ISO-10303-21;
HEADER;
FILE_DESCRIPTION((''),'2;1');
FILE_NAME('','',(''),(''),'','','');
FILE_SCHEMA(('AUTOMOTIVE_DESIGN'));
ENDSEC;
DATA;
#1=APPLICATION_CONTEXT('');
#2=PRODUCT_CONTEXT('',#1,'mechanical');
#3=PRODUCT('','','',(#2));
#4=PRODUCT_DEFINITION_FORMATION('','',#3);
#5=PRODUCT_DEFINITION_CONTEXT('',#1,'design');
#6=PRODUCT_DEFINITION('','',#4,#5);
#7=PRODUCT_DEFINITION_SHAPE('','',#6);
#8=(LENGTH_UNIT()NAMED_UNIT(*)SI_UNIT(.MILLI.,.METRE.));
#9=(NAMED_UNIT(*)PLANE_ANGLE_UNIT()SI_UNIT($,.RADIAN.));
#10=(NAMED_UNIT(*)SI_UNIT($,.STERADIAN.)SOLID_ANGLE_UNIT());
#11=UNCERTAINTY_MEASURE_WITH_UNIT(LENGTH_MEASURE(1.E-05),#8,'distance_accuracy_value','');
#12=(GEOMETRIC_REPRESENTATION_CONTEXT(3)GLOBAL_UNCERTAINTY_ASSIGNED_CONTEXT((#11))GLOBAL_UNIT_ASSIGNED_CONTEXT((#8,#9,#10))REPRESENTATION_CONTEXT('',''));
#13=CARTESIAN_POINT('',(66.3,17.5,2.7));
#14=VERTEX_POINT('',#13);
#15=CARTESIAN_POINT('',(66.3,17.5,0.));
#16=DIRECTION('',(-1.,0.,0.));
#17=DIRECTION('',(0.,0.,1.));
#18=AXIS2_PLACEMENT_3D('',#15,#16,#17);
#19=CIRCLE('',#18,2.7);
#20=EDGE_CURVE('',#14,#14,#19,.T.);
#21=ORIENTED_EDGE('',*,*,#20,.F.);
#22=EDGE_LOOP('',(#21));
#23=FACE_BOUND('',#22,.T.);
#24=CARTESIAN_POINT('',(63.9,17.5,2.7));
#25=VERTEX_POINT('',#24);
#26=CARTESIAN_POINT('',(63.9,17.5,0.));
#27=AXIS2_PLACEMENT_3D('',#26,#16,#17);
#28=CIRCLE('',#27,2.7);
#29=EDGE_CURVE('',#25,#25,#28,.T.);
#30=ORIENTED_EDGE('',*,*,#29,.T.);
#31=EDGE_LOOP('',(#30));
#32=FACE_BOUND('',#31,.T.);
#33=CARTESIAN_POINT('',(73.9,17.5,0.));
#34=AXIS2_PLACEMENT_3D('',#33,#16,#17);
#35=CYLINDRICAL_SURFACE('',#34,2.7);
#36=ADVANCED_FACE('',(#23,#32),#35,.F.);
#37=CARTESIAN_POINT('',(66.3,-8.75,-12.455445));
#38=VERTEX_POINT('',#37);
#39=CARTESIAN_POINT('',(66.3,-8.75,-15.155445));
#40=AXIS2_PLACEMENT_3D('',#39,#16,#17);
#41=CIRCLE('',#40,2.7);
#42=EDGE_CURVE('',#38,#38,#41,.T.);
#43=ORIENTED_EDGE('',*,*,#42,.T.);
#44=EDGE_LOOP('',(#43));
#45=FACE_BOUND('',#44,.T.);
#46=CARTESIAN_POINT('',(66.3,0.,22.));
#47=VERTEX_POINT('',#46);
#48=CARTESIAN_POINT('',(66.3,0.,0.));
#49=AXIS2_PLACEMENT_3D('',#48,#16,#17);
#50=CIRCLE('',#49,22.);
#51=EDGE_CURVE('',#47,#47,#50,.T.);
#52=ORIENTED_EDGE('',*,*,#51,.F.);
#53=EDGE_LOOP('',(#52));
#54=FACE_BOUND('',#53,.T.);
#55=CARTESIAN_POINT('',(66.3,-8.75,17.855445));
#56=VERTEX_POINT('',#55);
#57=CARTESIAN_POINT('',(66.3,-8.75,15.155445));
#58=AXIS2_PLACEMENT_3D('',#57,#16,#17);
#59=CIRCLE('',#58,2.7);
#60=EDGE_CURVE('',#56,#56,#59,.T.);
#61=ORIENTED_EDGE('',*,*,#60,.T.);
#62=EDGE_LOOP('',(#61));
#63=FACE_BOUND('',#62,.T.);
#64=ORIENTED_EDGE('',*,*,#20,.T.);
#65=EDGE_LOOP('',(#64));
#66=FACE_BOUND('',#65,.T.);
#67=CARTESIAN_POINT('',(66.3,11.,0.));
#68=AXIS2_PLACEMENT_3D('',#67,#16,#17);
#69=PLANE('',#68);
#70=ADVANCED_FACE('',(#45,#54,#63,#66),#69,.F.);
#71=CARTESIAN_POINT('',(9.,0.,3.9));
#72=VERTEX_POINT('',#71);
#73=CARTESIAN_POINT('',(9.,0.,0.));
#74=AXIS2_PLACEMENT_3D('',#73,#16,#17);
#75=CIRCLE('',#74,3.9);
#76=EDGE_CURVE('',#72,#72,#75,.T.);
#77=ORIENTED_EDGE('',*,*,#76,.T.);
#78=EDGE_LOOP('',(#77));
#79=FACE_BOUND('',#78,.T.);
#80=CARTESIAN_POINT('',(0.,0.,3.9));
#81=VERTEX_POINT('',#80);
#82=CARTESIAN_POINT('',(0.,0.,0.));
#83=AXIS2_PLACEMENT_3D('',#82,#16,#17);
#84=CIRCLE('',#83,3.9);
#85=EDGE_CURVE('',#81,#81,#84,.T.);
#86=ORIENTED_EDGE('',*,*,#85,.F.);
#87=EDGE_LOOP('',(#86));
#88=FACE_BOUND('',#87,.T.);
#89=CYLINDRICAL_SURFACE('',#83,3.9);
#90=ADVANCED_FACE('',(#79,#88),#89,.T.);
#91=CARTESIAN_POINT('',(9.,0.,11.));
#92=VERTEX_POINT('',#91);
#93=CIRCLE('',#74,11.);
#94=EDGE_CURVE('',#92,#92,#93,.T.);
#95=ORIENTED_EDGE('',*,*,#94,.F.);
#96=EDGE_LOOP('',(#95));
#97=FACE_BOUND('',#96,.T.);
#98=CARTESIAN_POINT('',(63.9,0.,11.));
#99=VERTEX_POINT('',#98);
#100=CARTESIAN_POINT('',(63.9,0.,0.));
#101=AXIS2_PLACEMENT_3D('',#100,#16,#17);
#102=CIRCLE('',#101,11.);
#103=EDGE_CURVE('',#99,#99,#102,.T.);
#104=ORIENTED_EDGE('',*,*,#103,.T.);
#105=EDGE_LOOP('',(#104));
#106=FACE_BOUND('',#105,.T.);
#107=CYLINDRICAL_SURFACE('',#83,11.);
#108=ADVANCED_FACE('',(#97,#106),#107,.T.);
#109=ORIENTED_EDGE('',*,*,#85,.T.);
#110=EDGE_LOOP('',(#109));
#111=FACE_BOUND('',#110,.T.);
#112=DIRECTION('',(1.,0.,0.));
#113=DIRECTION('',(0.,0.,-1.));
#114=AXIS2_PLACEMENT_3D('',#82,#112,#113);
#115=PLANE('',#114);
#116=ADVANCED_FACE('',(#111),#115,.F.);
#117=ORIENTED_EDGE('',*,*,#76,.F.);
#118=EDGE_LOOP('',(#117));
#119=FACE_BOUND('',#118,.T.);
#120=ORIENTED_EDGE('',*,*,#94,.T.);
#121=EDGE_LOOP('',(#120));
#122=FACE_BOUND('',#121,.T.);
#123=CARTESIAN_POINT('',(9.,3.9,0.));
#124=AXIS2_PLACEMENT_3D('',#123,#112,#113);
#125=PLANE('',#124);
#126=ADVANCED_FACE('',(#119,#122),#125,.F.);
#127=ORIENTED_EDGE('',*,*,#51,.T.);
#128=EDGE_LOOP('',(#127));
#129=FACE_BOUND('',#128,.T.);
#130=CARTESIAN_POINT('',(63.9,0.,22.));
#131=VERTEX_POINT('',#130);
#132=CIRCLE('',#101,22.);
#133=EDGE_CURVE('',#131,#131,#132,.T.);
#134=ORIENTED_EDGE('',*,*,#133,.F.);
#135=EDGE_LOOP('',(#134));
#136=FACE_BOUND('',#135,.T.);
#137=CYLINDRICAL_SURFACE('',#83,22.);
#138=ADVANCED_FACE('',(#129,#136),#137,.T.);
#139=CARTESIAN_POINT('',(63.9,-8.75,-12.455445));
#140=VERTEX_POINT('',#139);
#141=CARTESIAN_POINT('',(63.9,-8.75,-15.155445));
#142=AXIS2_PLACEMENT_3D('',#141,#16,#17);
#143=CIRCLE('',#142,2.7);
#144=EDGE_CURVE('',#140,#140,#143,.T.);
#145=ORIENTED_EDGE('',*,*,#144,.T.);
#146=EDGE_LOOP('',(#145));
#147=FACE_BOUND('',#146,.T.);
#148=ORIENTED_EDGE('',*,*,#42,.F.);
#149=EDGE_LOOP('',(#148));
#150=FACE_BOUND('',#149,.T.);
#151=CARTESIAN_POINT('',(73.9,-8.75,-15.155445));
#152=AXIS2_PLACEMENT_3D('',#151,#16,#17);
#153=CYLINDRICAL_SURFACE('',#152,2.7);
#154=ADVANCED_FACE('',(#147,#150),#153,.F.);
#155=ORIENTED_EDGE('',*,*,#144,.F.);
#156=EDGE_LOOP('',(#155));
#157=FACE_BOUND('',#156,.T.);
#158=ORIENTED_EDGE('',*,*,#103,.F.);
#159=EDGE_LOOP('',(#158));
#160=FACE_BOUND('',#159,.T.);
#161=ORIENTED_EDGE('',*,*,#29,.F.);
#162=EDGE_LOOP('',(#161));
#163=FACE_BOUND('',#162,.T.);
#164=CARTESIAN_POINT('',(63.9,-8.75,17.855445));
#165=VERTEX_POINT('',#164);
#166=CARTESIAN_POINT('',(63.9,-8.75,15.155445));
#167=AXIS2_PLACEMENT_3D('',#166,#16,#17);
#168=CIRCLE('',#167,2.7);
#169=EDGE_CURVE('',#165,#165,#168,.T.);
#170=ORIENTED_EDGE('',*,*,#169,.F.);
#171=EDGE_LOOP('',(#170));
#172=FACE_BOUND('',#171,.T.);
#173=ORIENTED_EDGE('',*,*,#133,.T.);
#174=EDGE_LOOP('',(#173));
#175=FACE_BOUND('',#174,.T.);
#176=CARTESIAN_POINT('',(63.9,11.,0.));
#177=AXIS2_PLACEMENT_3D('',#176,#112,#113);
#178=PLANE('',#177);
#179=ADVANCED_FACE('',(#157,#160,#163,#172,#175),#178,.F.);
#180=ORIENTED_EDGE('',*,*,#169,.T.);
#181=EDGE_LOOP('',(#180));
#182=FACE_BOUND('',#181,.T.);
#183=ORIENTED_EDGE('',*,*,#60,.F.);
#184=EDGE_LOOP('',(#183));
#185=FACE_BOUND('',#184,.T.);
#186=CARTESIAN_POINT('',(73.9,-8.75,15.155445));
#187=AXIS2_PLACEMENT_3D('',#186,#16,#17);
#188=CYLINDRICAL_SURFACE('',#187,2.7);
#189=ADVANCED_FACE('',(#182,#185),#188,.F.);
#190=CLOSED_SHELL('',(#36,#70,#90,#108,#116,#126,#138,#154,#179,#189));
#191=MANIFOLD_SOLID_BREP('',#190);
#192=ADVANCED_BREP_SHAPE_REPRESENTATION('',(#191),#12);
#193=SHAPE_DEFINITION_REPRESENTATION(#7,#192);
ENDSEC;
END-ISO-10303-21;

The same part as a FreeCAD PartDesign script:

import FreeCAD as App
import Part
import Sketcher
Q = App.Units.Quantity

doc = App.newDocument("Part")
body = doc.addObject("PartDesign::Body", "Body")

# Sketch on XY plane
sketch1 = body.newObject("Sketcher::SketchObject", "Sketch")
sketch1.AttachmentSupport = (doc.getObject("XY_Plane"), [""])
sketch1.MapMode = "FlatFace"
sketch1.addGeometry(Part.LineSegment(App.Vector(0, 3.9, 0), App.Vector(0, 0, 0)), False)
sketch1.addGeometry(Part.LineSegment(App.Vector(0, 0, 0), App.Vector(66.3, 0, 0)), False)
sketch1.addGeometry(Part.LineSegment(App.Vector(66.3, 0, 0), App.Vector(66.3, 22, 0)), False)
sketch1.addGeometry(Part.LineSegment(App.Vector(66.3, 22, 0), App.Vector(63.9, 22, 0)), False)
sketch1.addGeometry(Part.LineSegment(App.Vector(63.9, 22, 0), App.Vector(63.9, 11, 0)), False)
sketch1.addGeometry(Part.LineSegment(App.Vector(63.9, 11, 0), App.Vector(9, 11, 0)), False)
sketch1.addGeometry(Part.LineSegment(App.Vector(9, 11, 0), App.Vector(9, 3.9, 0)), False)
sketch1.addGeometry(Part.LineSegment(App.Vector(9, 3.9, 0), App.Vector(0, 3.9, 0)), False)
sketch1.addConstraint(Sketcher.Constraint("Coincident", 0, 2, 1, 1))
sketch1.addConstraint(Sketcher.Constraint("Coincident", 1, 2, 2, 1))
sketch1.addConstraint(Sketcher.Constraint("Coincident", 2, 2, 3, 1))
sketch1.addConstraint(Sketcher.Constraint("Coincident", 3, 2, 4, 1))
sketch1.addConstraint(Sketcher.Constraint("Coincident", 4, 2, 5, 1))
sketch1.addConstraint(Sketcher.Constraint("Coincident", 5, 2, 6, 1))
sketch1.addConstraint(Sketcher.Constraint("Coincident", 6, 2, 7, 1))
sketch1.addConstraint(Sketcher.Constraint("Coincident", 7, 2, 0, 1))
sketch1.addConstraint(Sketcher.Constraint("Vertical", 0))
sketch1.addConstraint(Sketcher.Constraint("Horizontal", 1))
sketch1.addConstraint(Sketcher.Constraint("Vertical", 2))
sketch1.addConstraint(Sketcher.Constraint("Horizontal", 3))
sketch1.addConstraint(Sketcher.Constraint("Vertical", 4))
sketch1.addConstraint(Sketcher.Constraint("Horizontal", 5))
sketch1.addConstraint(Sketcher.Constraint("Vertical", 6))
sketch1.addConstraint(Sketcher.Constraint("Horizontal", 7))
sketch1.addConstraint(Sketcher.Constraint("Coincident", 0, 2, -1, 1))
sketch1.addConstraint(Sketcher.Constraint("DistanceX", 7, 2, 7, 1, Q("9 mm")))
sketch1.addConstraint(Sketcher.Constraint("DistanceY", 2, 1, 2, 2, Q("22 mm")))
sketch1.addConstraint(Sketcher.Constraint("DistanceY", 4, 2, 4, 1, Q("11 mm")))
sketch1.addConstraint(Sketcher.Constraint("DistanceX", 1, 1, 1, 2, Q("66.3 mm")))
sketch1.addConstraint(Sketcher.Constraint("DistanceX", 3, 2, 3, 1, Q("2.4 mm")))
sketch1.addConstraint(Sketcher.Constraint("DistanceY", 0, 2, 0, 1, Q("3.9 mm")))
revolution = body.newObject("PartDesign::Revolution", "Revolution")
revolution.Profile = sketch1
revolution.ReferenceAxis = (sketch1, ["H_Axis"])
revolution.Angle = 360

# Sketch on YZ plane
sketch2 = body.newObject("Sketcher::SketchObject", "Sketch001")
sketch2.AttachmentSupport = (doc.getObject("YZ_Plane"), [""])
sketch2.MapMode = "FlatFace"
sketch2.AttachmentOffset = App.Placement(App.Vector(0, 0, 63.9), App.Rotation())
sketch2.addGeometry(Part.Circle(App.Vector(17.5, 0, 0), App.Vector(0, 0, 1), 2.7), False)
sketch2.addGeometry(Part.Circle(App.Vector(-8.8, 15.2, 0), App.Vector(0, 0, 1), 2.7), False)
sketch2.addGeometry(Part.Circle(App.Vector(-8.8, -15.2, 0), App.Vector(0, 0, 1), 2.7), False)
sketch2.addConstraint(Sketcher.Constraint("Equal", 0, 1))
sketch2.addConstraint(Sketcher.Constraint("Equal", 1, 2))
sketch2.addConstraint(Sketcher.Constraint("Symmetric", 1, 3, 2, 3, -1))
sketch2.addConstraint(Sketcher.Constraint("PointOnObject", 0, 3, -1))
sketch2.addConstraint(Sketcher.Constraint("Diameter", 0, Q("5.4 mm")))
sketch2.addConstraint(Sketcher.Constraint("DistanceX", -1, 1, 0, 3, Q("17.5 mm")))
sketch2.addConstraint(Sketcher.Constraint("DistanceX", 1, 3, -1, 1, Q("8.75 mm")))
sketch2.addConstraint(Sketcher.Constraint("DistanceY", 2, 3, 1, 3, Q("30.310889 mm")))
pocket1 = body.newObject("PartDesign::Pocket", "Pocket")
pocket1.Profile = sketch2
pocket1.Length = 10
pocket1.Reversed = True

doc.recompute()
